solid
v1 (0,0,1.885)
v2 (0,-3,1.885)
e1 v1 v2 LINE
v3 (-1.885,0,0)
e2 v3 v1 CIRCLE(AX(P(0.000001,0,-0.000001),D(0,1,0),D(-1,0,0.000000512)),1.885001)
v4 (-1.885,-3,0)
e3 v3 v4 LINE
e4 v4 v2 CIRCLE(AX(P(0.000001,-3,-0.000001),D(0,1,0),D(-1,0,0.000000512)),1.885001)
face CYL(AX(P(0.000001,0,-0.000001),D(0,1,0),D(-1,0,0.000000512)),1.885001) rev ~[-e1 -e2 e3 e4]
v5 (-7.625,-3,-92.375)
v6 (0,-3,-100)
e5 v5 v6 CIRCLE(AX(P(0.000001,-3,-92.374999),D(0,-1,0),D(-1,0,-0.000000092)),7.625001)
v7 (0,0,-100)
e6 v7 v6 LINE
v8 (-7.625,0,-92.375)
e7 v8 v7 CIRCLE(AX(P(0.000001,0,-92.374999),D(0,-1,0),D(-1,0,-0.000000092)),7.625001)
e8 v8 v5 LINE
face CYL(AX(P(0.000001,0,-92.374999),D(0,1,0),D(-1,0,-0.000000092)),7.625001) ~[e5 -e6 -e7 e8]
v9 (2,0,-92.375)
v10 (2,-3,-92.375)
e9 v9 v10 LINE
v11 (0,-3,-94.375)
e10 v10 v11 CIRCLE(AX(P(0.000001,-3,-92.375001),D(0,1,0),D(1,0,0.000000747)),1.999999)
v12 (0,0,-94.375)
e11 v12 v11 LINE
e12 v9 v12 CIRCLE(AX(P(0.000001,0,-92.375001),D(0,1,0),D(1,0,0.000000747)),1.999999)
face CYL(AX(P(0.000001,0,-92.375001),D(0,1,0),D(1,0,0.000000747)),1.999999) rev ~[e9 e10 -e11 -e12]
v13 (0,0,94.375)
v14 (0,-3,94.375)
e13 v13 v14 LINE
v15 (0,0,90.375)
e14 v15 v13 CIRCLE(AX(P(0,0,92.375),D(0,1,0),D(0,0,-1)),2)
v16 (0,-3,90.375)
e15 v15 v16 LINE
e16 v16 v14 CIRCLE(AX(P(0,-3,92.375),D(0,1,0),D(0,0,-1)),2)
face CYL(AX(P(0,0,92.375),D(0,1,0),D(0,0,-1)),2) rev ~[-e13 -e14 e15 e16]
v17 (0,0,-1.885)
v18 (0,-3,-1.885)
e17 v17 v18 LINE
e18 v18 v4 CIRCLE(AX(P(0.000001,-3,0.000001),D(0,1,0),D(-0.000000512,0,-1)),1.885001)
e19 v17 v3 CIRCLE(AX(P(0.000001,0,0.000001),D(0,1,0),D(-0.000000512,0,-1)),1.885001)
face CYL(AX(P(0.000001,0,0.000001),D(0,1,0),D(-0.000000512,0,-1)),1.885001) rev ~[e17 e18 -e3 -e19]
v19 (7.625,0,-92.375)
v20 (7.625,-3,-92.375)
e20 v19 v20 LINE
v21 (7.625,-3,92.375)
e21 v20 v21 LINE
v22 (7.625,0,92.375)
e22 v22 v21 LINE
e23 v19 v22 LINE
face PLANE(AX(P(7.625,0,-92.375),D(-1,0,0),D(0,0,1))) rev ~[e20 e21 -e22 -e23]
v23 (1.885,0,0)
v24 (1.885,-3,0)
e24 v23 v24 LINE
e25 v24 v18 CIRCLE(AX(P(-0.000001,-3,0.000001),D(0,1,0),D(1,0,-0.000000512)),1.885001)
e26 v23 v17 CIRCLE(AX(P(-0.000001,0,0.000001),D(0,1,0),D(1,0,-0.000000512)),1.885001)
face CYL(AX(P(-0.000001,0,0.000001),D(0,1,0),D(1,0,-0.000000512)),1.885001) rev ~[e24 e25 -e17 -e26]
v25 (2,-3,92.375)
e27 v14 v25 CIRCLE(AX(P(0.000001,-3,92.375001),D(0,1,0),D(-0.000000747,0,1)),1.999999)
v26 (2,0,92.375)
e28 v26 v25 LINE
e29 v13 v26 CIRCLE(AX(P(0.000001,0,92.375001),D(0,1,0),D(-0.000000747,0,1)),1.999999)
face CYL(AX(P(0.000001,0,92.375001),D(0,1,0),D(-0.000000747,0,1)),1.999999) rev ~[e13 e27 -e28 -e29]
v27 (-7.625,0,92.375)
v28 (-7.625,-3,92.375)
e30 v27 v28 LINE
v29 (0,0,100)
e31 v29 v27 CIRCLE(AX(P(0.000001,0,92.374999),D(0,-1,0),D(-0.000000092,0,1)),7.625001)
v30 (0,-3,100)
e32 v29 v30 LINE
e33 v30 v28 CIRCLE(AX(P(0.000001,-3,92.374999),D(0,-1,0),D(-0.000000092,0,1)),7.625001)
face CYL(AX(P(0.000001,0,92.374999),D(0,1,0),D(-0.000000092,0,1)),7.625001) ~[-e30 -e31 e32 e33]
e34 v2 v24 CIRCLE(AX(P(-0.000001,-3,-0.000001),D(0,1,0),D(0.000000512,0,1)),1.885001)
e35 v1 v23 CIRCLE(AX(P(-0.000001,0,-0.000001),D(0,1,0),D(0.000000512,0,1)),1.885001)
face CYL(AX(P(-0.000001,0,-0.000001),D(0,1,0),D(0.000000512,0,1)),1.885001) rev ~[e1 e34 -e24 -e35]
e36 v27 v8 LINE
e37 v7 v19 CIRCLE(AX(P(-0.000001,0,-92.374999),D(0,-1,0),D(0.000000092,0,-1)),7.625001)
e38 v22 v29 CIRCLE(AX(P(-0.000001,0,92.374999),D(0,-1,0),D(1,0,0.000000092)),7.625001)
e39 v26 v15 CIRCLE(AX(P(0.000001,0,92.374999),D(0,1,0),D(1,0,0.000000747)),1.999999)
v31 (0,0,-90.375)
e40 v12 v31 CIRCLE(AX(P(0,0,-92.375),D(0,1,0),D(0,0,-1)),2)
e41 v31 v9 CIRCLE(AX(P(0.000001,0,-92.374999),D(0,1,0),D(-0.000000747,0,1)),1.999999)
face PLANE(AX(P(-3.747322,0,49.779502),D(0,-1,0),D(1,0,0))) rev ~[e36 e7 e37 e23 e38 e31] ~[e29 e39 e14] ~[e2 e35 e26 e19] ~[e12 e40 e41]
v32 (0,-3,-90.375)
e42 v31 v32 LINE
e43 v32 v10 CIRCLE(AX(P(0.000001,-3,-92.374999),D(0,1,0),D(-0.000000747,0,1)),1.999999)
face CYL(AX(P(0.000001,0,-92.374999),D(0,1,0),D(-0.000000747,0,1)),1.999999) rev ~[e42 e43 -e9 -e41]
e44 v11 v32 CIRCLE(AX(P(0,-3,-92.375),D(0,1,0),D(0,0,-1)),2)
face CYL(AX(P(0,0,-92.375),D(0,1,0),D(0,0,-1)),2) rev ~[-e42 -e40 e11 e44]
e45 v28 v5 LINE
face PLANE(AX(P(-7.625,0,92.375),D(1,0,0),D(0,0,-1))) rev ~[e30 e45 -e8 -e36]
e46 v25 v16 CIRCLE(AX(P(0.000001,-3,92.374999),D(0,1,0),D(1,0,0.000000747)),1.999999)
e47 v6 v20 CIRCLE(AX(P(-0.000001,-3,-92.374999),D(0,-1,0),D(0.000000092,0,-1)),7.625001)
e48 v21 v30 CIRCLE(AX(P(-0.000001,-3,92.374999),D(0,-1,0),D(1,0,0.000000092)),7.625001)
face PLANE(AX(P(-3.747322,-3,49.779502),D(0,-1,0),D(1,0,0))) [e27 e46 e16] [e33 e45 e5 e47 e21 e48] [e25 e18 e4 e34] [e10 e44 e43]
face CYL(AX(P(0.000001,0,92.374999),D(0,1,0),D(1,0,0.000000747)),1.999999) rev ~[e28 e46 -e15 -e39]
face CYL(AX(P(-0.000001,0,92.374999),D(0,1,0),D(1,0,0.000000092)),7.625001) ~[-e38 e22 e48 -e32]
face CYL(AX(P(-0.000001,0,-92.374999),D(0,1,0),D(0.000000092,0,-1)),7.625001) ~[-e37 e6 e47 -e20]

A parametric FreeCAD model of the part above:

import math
import FreeCAD as App
import Part
import Sketcher

V = App.Vector

doc = App.newDocument("Part")
body = doc.addObject("PartDesign::Body", "Body")

# Sketch on XZ plane
sketch1 = doc.addObject("Sketcher::SketchObject", "Sketch")
body.addObject(sketch1)
sketch1.AttachmentSupport = (doc.XZ_Plane, [""])
sketch1.MapMode = "FlatFace"
sketch1.addGeometry([
    Part.ArcOfCircle(Part.Circle(V(0.000001, 92.374999, 0), V(0, 0, 1), 7.625001), math.radians(90.000005), math.radians(179.999995)),  # 0
    Part.LineSegment(V(-7.625, 92.375, 0), V(-7.625, -92.375, 0)),  # 1
    Part.ArcOfCircle(Part.Circle(V(0.000001, -92.374999, 0), V(0, 0, 1), 7.625001), math.radians(-179.999995), math.radians(-90.000005)),  # 2
    Part.ArcOfCircle(Part.Circle(V(-0.000001, -92.374999, 0), V(0, 0, 1), 7.625001), math.radians(-89.999995), math.radians(-0.000005)),  # 3
    Part.LineSegment(V(7.625, -92.375, 0), V(7.625, 92.375, 0)),  # 4
    Part.ArcOfCircle(Part.Circle(V(-0.000001, 92.374999, 0), V(0, 0, 1), 7.625001), math.radians(0.000005), math.radians(89.999995)),  # 5
    Part.ArcOfCircle(Part.Circle(V(0, -92.375, 0), V(0, 0, 1), 2), math.radians(90), math.radians(270)),  # 6
    Part.ArcOfCircle(Part.Circle(V(0.000001, -92.374999, 0), V(0, 0, 1), 1.999999), math.radians(-0.000043), math.radians(90.000043)),  # 7
    Part.ArcOfCircle(Part.Circle(V(0.000001, -92.375001, 0), V(0, 0, 1), 1.999999), math.radians(-90.000043), math.radians(0.000043)),  # 8
    Part.ArcOfCircle(Part.Circle(V(0.000001, 0.000001, 0), V(0, 0, 1), 1.885001), math.radians(-179.999971), math.radians(-90.000029)),  # 9
    Part.ArcOfCircle(Part.Circle(V(0.000001, -0.000001, 0), V(0, 0, 1), 1.885001), math.radians(90.000029), math.radians(179.999971)),  # 10
    Part.ArcOfCircle(Part.Circle(V(-0.000001, -0.000001, 0), V(0, 0, 1), 1.885001), math.radians(0.000029), math.radians(89.999971)),  # 11
    Part.ArcOfCircle(Part.Circle(V(-0.000001, 0.000001, 0), V(0, 0, 1), 1.885001), math.radians(-89.999971), math.radians(-0.000029)),  # 12
    Part.ArcOfCircle(Part.Circle(V(0, 92.375, 0), V(0, 0, 1), 2), math.radians(90), math.radians(270)),  # 13
    Part.ArcOfCircle(Part.Circle(V(0.000001, 92.375001, 0), V(0, 0, 1), 1.999999), math.radians(-0.000043), math.radians(90.000043)),  # 14
    Part.ArcOfCircle(Part.Circle(V(0.000001, 92.374999, 0), V(0, 0, 1), 1.999999), math.radians(-90.000043), math.radians(0.000043)),  # 15
], False)
sketch1.addConstraint([
    Sketcher.Constraint("Tangent", 0, 2, 1, 1),
    Sketcher.Constraint("Tangent", 1, 2, 2, 1),
    Sketcher.Constraint("Tangent", 2, 2, 3, 1),
    Sketcher.Constraint("Tangent", 3, 2, 4, 1),
    Sketcher.Constraint("Tangent", 4, 2, 5, 1),
    Sketcher.Constraint("Tangent", 5, 2, 0, 1),
    Sketcher.Constraint("Tangent", 6, 1, 7, 2),
    Sketcher.Constraint("Tangent", 7, 1, 8, 2),
    Sketcher.Constraint("Tangent", 8, 1, 6, 2),
    Sketcher.Constraint("Tangent", 9, 1, 10, 2),
    Sketcher.Constraint("Tangent", 10, 1, 11, 2),
    Sketcher.Constraint("Tangent", 11, 1, 12, 2),
    Sketcher.Constraint("Tangent", 12, 1, 9, 2),
    Sketcher.Constraint("Tangent", 13, 1, 14, 2),
    Sketcher.Constraint("Tangent", 14, 1, 15, 2),
    Sketcher.Constraint("Tangent", 15, 1, 13, 2),
    Sketcher.Constraint("Vertical", 1),
    Sketcher.Constraint("Vertical", 4),
    Sketcher.Constraint("Coincident", 9, 3, -1, 1),
    Sketcher.Constraint("Coincident", 6, 3, 2, 3),
    Sketcher.Constraint("Coincident", 13, 3, 0, 3),
    Sketcher.Constraint("Equal", 0, 2),
    Sketcher.Constraint("Equal", 2, 3),
    Sketcher.Constraint("Equal", 9, 10),
    Sketcher.Constraint("Equal", 8, 13),
    Sketcher.Constraint("Symmetric", 0, 3, 2, 3, -1, 1),
    Sketcher.Constraint("PointOnObject", 2, 2, -2),
    Sketcher.Constraint("PointOnObject", 5, 2, -2),
    Sketcher.Constraint("PointOnObject", 6, 1, -2),
    Sketcher.Constraint("PointOnObject", 8, 1, -2),
    Sketcher.Constraint("PointOnObject", 9, 1, -1),
    Sketcher.Constraint("PointOnObject", 10, 1, -2),
    Sketcher.Constraint("PointOnObject", 11, 1, -1),
    Sketcher.Constraint("PointOnObject", 12, 1, -2),
    Sketcher.Constraint("PointOnObject", 13, 1, -2),
    Sketcher.Constraint("PointOnObject", 15, 1, -2),
    Sketcher.Constraint("Horizontal", 3, 2, 7, 1),
    Sketcher.Constraint("Horizontal", 4, 2, 14, 1),
    Sketcher.Constraint("Radius", 6, 2.0),
    Sketcher.Constraint("DistanceY", 2, 2, -1, 1, 100.0),
    Sketcher.Constraint("Radius", 0, 7.625001),
    Sketcher.Constraint("Radius", 9, 1.885001),
])
pad1 = doc.addObject("PartDesign::Pad", "Pad")
body.addObject(pad1)
pad1.Profile = sketch1
pad1.Length = 3

doc.recompute()
